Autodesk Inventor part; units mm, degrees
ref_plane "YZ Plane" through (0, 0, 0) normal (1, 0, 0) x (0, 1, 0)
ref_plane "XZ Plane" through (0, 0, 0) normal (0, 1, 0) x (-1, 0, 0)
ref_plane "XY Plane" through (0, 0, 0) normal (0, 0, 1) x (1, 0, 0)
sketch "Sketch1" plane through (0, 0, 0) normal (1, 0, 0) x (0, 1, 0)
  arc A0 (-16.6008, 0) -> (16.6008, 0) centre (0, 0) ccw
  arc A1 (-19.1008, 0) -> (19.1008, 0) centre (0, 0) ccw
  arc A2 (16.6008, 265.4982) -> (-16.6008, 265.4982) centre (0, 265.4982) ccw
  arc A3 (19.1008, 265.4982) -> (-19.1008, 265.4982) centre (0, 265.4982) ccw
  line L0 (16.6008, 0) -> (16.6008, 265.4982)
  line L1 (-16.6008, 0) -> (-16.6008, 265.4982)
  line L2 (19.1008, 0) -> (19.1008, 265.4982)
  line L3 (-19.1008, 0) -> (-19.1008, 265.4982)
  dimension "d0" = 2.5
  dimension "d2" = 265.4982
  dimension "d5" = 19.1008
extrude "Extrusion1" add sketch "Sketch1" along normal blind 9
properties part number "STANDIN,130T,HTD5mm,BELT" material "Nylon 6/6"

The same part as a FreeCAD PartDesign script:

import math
import FreeCAD as App
import Part
import Sketcher
from FreeCAD import Vector
Q = App.Units.Quantity

doc = App.newDocument("Part")
params = doc.addObject("Spreadsheet::Sheet", "Params")
for row, (alias, value) in enumerate([
    ("pad1_length", "9 mm"),
], start=1):
    params.set(f"A{row}", alias)
    params.set(f"B{row}", "=" + value)
    params.setAlias(f"B{row}", alias)

body = doc.addObject("PartDesign::Body", "Body")

# Sketch on YZ plane
sketch1 = body.newObject("Sketcher::SketchObject", "Sketch")
sketch1.AttachmentSupport = (doc.getObject("YZ_Plane"), [""])
sketch1.MapMode = "FlatFace"
sketch1.addGeometry(Part.LineSegment(Vector(-19.1008, 265.4982, 0), Vector(-19.1008, 0, 0)), False)
sketch1.addGeometry(Part.ArcOfCircle(Part.Circle(Vector(0, 0, 0), Vector(0, 0, 1), 19.1008), math.radians(180), math.radians(360)), False)
sketch1.addGeometry(Part.LineSegment(Vector(19.1008, 0, 0), Vector(19.1008, 265.4982, 0)), False)
sketch1.addGeometry(Part.ArcOfCircle(Part.Circle(Vector(0, 265.4982, 0), Vector(0, 0, 1), 19.1008), math.radians(0), math.radians(180)), False)
sketch1.addGeometry(Part.ArcOfCircle(Part.Circle(Vector(0, 0, 0), Vector(0, 0, 1), 16.6008), math.radians(180), math.radians(360)), False)
sketch1.addGeometry(Part.LineSegment(Vector(-16.6008, 0, 0), Vector(-16.6008, 265.4982, 0)), False)
sketch1.addGeometry(Part.ArcOfCircle(Part.Circle(Vector(0, 265.4982, 0), Vector(0, 0, 1), 16.6008), math.radians(0), math.radians(180)), False)
sketch1.addGeometry(Part.LineSegment(Vector(16.6008, 265.4982, 0), Vector(16.6008, 0, 0)), False)
sketch1.addConstraint(Sketcher.Constraint("Tangent", 0, 2, 1, 1))
sketch1.addConstraint(Sketcher.Constraint("Tangent", 1, 2, 2, 1))
sketch1.addConstraint(Sketcher.Constraint("Tangent", 2, 2, 3, 1))
sketch1.addConstraint(Sketcher.Constraint("Tangent", 3, 2, 0, 1))
sketch1.addConstraint(Sketcher.Constraint("Tangent", 4, 1, 5, 1))
sketch1.addConstraint(Sketcher.Constraint("Tangent", 5, 2, 6, 2))
sketch1.addConstraint(Sketcher.Constraint("Tangent", 6, 1, 7, 1))
sketch1.addConstraint(Sketcher.Constraint("Tangent", 7, 2, 4, 2))
sketch1.addConstraint(Sketcher.Constraint("Vertical", 0))
sketch1.addConstraint(Sketcher.Constraint("Vertical", 2))
sketch1.addConstraint(Sketcher.Constraint("Vertical", 5))
sketch1.addConstraint(Sketcher.Constraint("Vertical", 7))
sketch1.addConstraint(Sketcher.Constraint("Coincident", 1, 3, -1, 1))
sketch1.addConstraint(Sketcher.Constraint("Coincident", 4, 3, -1, 1))
sketch1.addConstraint(Sketcher.Constraint("Horizontal", 6, 3, 2, 2))
sketch1.addConstraint(Sketcher.Constraint("Radius", 1, Q("19.1008 mm")))
sketch1.addConstraint(Sketcher.Constraint("DistanceX", 0, 2, 4, 1, Q("2.5 mm")))
sketch1.addConstraint(Sketcher.Constraint("DistanceY", 0, 2, 0, 1, Q("265.4982 mm")))
pad1 = body.newObject("PartDesign::Pad", "Pad")
pad1.Profile = sketch1
pad1.setExpression("Length", "Params.pad1_length")

doc.recompute()
